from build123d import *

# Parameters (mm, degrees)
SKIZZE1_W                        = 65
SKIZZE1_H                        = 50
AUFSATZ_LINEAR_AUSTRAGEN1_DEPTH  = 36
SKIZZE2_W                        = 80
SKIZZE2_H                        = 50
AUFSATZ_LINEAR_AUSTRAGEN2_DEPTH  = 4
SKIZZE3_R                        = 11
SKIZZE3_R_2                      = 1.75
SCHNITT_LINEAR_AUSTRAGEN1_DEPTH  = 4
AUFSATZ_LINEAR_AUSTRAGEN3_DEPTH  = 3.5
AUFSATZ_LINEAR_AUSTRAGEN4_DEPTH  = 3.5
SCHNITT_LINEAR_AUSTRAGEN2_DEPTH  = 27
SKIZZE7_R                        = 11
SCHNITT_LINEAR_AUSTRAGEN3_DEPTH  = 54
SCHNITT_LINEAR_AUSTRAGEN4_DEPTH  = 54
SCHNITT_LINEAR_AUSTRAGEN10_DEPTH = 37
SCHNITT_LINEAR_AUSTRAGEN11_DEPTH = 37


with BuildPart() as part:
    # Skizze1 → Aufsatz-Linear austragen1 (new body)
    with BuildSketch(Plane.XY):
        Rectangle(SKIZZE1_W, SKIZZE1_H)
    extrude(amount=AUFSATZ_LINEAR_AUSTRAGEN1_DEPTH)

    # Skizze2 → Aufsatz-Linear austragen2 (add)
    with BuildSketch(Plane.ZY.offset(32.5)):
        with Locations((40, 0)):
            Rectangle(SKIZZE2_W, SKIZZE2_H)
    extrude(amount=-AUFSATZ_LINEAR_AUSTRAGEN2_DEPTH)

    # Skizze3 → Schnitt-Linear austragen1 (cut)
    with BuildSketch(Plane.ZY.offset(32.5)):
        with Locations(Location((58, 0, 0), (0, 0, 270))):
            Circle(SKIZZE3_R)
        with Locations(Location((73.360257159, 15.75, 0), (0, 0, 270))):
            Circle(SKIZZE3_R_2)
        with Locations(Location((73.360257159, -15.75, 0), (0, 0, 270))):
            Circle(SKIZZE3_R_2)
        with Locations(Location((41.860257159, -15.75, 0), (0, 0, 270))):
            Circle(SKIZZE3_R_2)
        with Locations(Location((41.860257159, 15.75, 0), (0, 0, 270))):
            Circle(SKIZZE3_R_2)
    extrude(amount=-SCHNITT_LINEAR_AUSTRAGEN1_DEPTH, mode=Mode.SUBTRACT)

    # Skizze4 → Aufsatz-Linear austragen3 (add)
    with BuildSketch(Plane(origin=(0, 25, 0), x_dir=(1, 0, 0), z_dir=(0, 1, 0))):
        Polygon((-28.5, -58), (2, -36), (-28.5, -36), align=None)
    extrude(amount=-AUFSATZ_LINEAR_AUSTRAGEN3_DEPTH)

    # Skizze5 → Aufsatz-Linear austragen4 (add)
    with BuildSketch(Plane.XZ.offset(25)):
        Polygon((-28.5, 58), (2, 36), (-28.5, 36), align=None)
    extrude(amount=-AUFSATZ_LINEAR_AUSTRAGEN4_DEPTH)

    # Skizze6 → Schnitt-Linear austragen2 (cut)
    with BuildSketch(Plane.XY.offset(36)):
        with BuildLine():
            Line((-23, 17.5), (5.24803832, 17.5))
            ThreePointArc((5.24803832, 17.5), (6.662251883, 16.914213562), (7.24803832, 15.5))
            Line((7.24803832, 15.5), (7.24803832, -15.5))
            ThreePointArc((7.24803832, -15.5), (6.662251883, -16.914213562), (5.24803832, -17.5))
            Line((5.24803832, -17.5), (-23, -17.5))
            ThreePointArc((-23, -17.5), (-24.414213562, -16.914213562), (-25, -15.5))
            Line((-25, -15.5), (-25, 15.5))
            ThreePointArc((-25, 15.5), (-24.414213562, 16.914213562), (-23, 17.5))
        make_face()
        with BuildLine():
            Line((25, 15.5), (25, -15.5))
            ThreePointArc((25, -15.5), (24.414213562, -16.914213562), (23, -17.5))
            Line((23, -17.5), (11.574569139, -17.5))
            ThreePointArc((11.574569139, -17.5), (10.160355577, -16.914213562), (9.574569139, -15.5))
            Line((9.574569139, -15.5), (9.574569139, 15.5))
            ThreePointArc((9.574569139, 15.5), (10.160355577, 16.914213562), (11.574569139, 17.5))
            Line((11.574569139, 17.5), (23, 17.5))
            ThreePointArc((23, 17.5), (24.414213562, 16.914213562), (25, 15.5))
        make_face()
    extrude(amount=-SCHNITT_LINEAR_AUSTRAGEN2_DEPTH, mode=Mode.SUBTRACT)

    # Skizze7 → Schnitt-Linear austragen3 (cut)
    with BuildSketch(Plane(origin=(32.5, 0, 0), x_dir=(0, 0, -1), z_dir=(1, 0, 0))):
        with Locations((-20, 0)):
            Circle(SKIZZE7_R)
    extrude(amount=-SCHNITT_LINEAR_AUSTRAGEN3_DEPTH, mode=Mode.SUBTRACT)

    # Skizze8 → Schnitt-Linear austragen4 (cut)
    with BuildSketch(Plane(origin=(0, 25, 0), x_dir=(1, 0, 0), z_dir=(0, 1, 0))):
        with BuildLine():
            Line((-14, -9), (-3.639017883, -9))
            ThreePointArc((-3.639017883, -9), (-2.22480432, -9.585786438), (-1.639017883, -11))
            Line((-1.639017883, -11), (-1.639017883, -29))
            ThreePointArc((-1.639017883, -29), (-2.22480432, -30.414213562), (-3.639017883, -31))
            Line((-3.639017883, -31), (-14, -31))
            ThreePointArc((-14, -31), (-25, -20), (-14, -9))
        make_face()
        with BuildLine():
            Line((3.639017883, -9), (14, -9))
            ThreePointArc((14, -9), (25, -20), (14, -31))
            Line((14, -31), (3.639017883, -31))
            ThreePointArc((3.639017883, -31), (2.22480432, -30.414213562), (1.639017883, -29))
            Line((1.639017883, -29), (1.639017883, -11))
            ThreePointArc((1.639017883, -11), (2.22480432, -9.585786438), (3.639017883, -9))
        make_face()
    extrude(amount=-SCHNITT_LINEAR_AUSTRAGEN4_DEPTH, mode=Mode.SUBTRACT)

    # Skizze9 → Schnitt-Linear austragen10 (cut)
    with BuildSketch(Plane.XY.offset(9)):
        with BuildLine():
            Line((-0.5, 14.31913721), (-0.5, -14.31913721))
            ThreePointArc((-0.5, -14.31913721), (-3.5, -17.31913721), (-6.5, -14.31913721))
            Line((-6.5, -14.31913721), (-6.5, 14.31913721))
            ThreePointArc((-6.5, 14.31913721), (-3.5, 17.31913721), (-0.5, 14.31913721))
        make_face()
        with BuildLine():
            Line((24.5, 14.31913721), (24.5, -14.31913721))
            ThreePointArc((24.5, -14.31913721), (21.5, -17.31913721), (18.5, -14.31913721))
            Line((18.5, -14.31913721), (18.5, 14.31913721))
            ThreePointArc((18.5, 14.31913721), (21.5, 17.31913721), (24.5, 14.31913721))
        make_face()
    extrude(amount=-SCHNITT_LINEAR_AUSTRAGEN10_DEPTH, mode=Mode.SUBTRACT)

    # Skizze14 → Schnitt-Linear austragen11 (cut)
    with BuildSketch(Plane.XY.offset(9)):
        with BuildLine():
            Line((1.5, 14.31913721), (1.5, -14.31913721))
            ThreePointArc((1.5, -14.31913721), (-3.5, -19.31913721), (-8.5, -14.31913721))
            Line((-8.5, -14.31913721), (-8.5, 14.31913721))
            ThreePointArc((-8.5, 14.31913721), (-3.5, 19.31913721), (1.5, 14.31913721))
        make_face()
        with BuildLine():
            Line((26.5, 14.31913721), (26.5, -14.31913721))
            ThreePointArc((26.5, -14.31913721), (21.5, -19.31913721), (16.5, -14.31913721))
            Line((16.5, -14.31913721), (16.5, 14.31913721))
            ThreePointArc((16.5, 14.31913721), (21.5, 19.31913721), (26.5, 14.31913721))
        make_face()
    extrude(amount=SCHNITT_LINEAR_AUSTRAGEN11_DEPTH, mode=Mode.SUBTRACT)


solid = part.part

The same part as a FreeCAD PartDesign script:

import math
import FreeCAD as App
import Part
import Sketcher

V = App.Vector

doc = App.newDocument("Part")
params = doc.addObject("Spreadsheet::Sheet", "Params")
for row, (alias, value) in enumerate([
    ("sketch1_width", "65 mm"),
    ("sketch1_height", "50 mm"),
    ("pad1_length", "36 mm"),
    ("sketch2_width", "50 mm"),
    ("sketch2_height", "80 mm"),
    ("pad2_length", "4 mm"),
    ("sketch3_diameter", "22 mm"),
    ("sketch3_diameter2", "3.5 mm"),
    ("pocket1_length", "4 mm"),
    ("sketch4_height", "22 mm"),
    ("sketch4_width", "30.5 mm"),
    ("pad3_length", "3.5 mm"),
    ("sketch5_height", "22 mm"),
    ("sketch5_width", "30.5 mm"),
    ("pad4_length", "3.5 mm"),
    ("sketch6_radius", "2 mm"),
    ("sketch6_height", "31 mm"),
    ("pocket2_length", "27 mm"),
    ("sketch7_diameter", "22 mm"),
    ("pocket3_length", "54 mm"),
    ("sketch8_radius", "11 mm"),
    ("sketch8_radius2", "2 mm"),
    ("pocket4_length", "54 mm"),
    ("sketch9_radius", "3 mm"),
    ("pocket5_length", "37 mm"),
    ("sketch10_radius", "5 mm"),
    ("pocket6_length", "37 mm"),
], start=1):
    params.set(f"A{row}", alias)
    params.set(f"B{row}", "=" + value)
    params.setAlias(f"B{row}", alias)

body = doc.addObject("PartDesign::Body", "Body")

sketch1 = body.newObject("Sketcher::SketchObject", "Sketch")
sketch1.AttachmentSupport = (doc.getObject("XY_Plane"), [""])
sketch1.MapMode = "FlatFace"
sketch1.addGeometry([
    Part.LineSegment(V(-32, 25, 0), V(-32, -25, 0)),
    Part.LineSegment(V(-32, -25, 0), V(32, -25, 0)),
    Part.LineSegment(V(32, -25, 0), V(32, 25, 0)),
    Part.LineSegment(V(32, 25, 0), V(-32, 25, 0)),
], False)
sketch1.addConstraint([
    Sketcher.Constraint("Coincident", 0, 2, 1, 1),
    Sketcher.Constraint("Coincident", 1, 2, 2, 1),
    Sketcher.Constraint("Coincident", 2, 2, 3, 1),
    Sketcher.Constraint("Coincident", 3, 2, 0, 1),
    Sketcher.Constraint("Vertical", 0),
    Sketcher.Constraint("Horizontal", 1),
    Sketcher.Constraint("Vertical", 2),
    Sketcher.Constraint("Horizontal", 3),
    Sketcher.Constraint("Symmetric", 0, 2, 2, 2, -1, 1),
    Sketcher.Constraint("DistanceX", 1, 1, 1, 2, 65.0),
    Sketcher.Constraint("DistanceY", 0, 2, 0, 1, 50.0),
])
sketch1.setExpression("Constraints[9]", "Params.sketch1_width")
sketch1.setExpression("Constraints[10]", "Params.sketch1_height")
pad1 = body.newObject("PartDesign::Pad", "Pad")
pad1.Profile = sketch1
pad1.setExpression("Length", "Params.pad1_length")

sketch2 = body.newObject("Sketcher::SketchObject", "Sketch001")
sketch2.AttachmentSupport = (doc.getObject("YZ_Plane"), [""])
sketch2.MapMode = "FlatFace"
sketch2.AttachmentOffset = App.Placement(V(0, 0, -32.5), App.Rotation())
sketch2.addGeometry([
    Part.LineSegment(V(25, 0, 0), V(-25, 0, 0)),
    Part.LineSegment(V(-25, 0, 0), V(-25, 80, 0)),
    Part.LineSegment(V(-25, 80, 0), V(25, 80, 0)),
    Part.LineSegment(V(25, 80, 0), V(25, 0, 0)),
], False)
sketch2.addConstraint([
    Sketcher.Constraint("Coincident", 0, 2, 1, 1),
    Sketcher.Constraint("Coincident", 1, 2, 2, 1),
    Sketcher.Constraint("Coincident", 2, 2, 3, 1),
    Sketcher.Constraint("Coincident", 3, 2, 0, 1),
    Sketcher.Constraint("Horizontal", 0),
    Sketcher.Constraint("Vertical", 1),
    Sketcher.Constraint("Horizontal", 2),
    Sketcher.Constraint("Vertical", 3),
    Sketcher.Constraint("Symmetric", 0, 2, 3, 2, -1, 1),
    Sketcher.Constraint("DistanceX", 0, 2, 0, 1, 50.0),
    Sketcher.Constraint("DistanceY", 1, 1, 1, 2, 80.0),
])
sketch2.setExpression("Constraints[9]", "Params.sketch2_width")
sketch2.setExpression("Constraints[10]", "Params.sketch2_height")
pad2 = body.newObject("PartDesign::Pad", "Pad001")
pad2.Profile = sketch2
pad2.setExpression("Length", "Params.pad2_length")

sketch3 = body.newObject("Sketcher::SketchObject", "Sketch002")
sketch3.AttachmentSupport = (doc.getObject("YZ_Plane"), [""])
sketch3.MapMode = "FlatFace"
sketch3.AttachmentOffset = App.Placement(V(0, 0, -32.5), App.Rotation())
sketch3.addGeometry([
    Part.Circle(V(0, 58, 0), V(0, 0, 1), 11),
    Part.Circle(V(15.8, 73.4, 0), V(0, 0, 1), 1.8),
    Part.Circle(V(-15.8, 73.4, 0), V(0, 0, 1), 1.8),
    Part.Circle(V(-15.8, 41.9, 0), V(0, 0, 1), 1.8),
    Part.Circle(V(15.8, 41.9, 0), V(0, 0, 1), 1.8),
], False)
sketch3.addConstraint([
    Sketcher.Constraint("Equal", 1, 2),
    Sketcher.Constraint("Equal", 2, 3),
    Sketcher.Constraint("Equal", 3, 4),
    Sketcher.Constraint("Symmetric", 1, 3, 2, 3, -2),
    Sketcher.Constraint("Symmetric", 3, 3, 4, 3, -2),
    Sketcher.Constraint("PointOnObject", 0, 3, -2),
    Sketcher.Constraint("Vertical", 2, 3, 3, 3),
    Sketcher.Constraint("Diameter", 0, 22.0),
    Sketcher.Constraint("Diameter", 1, 3.5),
    Sketcher.Constraint("DistanceY", -1, 1, 0, 3, 58.0),
    Sketcher.Constraint("DistanceX", 2, 3, 1, 3, 31.5),
    Sketcher.Constraint("DistanceY", 3, 3, 2, 3, 31.5),
    Sketcher.Constraint("DistanceY", -1, 1, 1, 3, 73.360257),
])
sketch3.setExpression("Constraints[7]", "Params.sketch3_diameter")
sketch3.setExpression("Constraints[8]", "Params.sketch3_diameter2")
pocket1 = body.newObject("PartDesign::Pocket", "Pocket")
pocket1.Profile = sketch3
pocket1.setExpression("Length", "Params.pocket1_length")
pocket1.Reversed = True

sketch4 = body.newObject("Sketcher::SketchObject", "Sketch003")
sketch4.AttachmentSupport = (doc.getObject("XZ_Plane"), [""])
sketch4.MapMode = "FlatFace"
sketch4.AttachmentOffset = App.Placement(V(0, 0, -25), App.Rotation())
sketch4.addGeometry([
    Part.LineSegment(V(-28, 58, 0), V(2, 36, 0)),
    Part.LineSegment(V(2, 36, 0), V(-28, 36, 0)),
    Part.LineSegment(V(-28, 36, 0), V(-28, 58, 0)),
], False)
sketch4.addConstraint([
    Sketcher.Constraint("Coincident", 0, 2, 1, 1),
    Sketcher.Constraint("Coincident", 1, 2, 2, 1),
    Sketcher.Constraint("Coincident", 2, 2, 0, 1),
    Sketcher.Constraint("Horizontal", 1),
    Sketcher.Constraint("Vertical", 2),
    Sketcher.Constraint("DistanceY", 2, 1, 2, 2, 22.0),
    Sketcher.Constraint("DistanceX", 1, 2, 1, 1, 30.5),
    Sketcher.Constraint("DistanceX", -1, 1, 0, 2, 2.0),
    Sketcher.Constraint("DistanceY", -1, 1, 0, 2, 36.0),
])
sketch4.setExpression("Constraints[5]", "Params.sketch4_height")
sketch4.setExpression("Constraints[6]", "Params.sketch4_width")
pad3 = body.newObject("PartDesign::Pad", "Pad002")
pad3.Profile = sketch4
pad3.setExpression("Length", "Params.pad3_length")

sketch5 = body.newObject("Sketcher::SketchObject", "Sketch004")
sketch5.AttachmentSupport = (doc.getObject("XZ_Plane"), [""])
sketch5.MapMode = "FlatFace"
sketch5.AttachmentOffset = App.Placement(V(0, 0, 25), App.Rotation())
sketch5.addGeometry([
    Part.LineSegment(V(2, 36, 0), V(-28, 58, 0)),
    Part.LineSegment(V(-28, 58, 0), V(-28, 36, 0)),
    Part.LineSegment(V(-28, 36, 0), V(2, 36, 0)),
], False)
sketch5.addConstraint([
    Sketcher.Constraint("Coincident", 0, 2, 1, 1),
    Sketcher.Constraint("Coincident", 1, 2, 2, 1),
    Sketcher.Constraint("Coincident", 2, 2, 0, 1),
    Sketcher.Constraint("Vertical", 1),
    Sketcher.Constraint("Horizontal", 2),
    Sketcher.Constraint("DistanceY", 1, 2, 1, 1, 22.0),
    Sketcher.Constraint("DistanceX", 2, 1, 2, 2, 30.5),
    Sketcher.Constraint("DistanceY", -1, 1, 0, 2, 58.0),
    Sketcher.Constraint("DistanceX", -1, 1, 2, 2, 2.0),
])
sketch5.setExpression("Constraints[5]", "Params.sketch5_height")
sketch5.setExpression("Constraints[6]", "Params.sketch5_width")
pad4 = body.newObject("PartDesign::Pad", "Pad003")
pad4.Profile = sketch5
pad4.setExpression("Length", "Params.pad4_length")
pad4.Reversed = True

sketch6 = body.newObject("Sketcher::SketchObject", "Sketch005")
sketch6.AttachmentSupport = (doc.getObject("XY_Plane"), [""])
sketch6.MapMode = "FlatFace"
sketch6.AttachmentOffset = App.Placement(V(0, 0, 36), App.Rotation())
sketch6.addGeometry([
    Part.LineSegment(V(5.2, 17.5, 0), V(-23, 17.5, 0)),
    Part.ArcOfCircle(Part.Circle(V(-23, 15.5, 0), V(0, 0, 1), 2), math.radians(90), math.radians(180)),
    Part.LineSegment(V(-25, 15.5, 0), V(-25, -15.5, 0)),
    Part.ArcOfCircle(Part.Circle(V(-23, -15.5, 0), V(0, 0, 1), 2), math.radians(-180), math.radians(-90)),
    Part.LineSegment(V(-23, -17.5, 0), V(5.2, -17.5, 0)),
    Part.ArcOfCircle(Part.Circle(V(5.2, -15.5, 0), V(0, 0, 1), 2), math.radians(-90), math.radians(0)),
    Part.LineSegment(V(7.2, -15.5, 0), V(7.2, 15.5, 0)),
    Part.ArcOfCircle(Part.Circle(V(5.2, 15.5, 0), V(0, 0, 1), 2), math.radians(0), math.radians(90)),
    Part.LineSegment(V(25, -15.5, 0), V(25, 15.5, 0)),
    Part.ArcOfCircle(Part.Circle(V(23, 15.5, 0), V(0, 0, 1), 2), math.radians(0), math.radians(90)),
    Part.LineSegment(V(23, 17.5, 0), V(11.6, 17.5, 0)),
    Part.ArcOfCircle(Part.Circle(V(11.6, 15.5, 0), V(0, 0, 1), 2), math.radians(90), math.radians(180)),
    Part.LineSegment(V(9.6, 15.5, 0), V(9.6, -15.5, 0)),
    Part.ArcOfCircle(Part.Circle(V(11.6, -15.5, 0), V(0, 0, 1), 2), math.radians(-180), math.radians(-90)),
    Part.LineSegment(V(11.6, -17.5, 0), V(23, -17.5, 0)),
    Part.ArcOfCircle(Part.Circle(V(23, -15.5, 0), V(0, 0, 1), 2), math.radians(-90), math.radians(0)),
], False)
sketch6.addConstraint([
    Sketcher.Constraint("Tangent", 0, 2, 1, 1),
    Sketcher.Constraint("Tangent", 1, 2, 2, 1),
    Sketcher.Constraint("Tangent", 2, 2, 3, 1),
    Sketcher.Constraint("Tangent", 3, 2, 4, 1),
    Sketcher.Constraint("Tangent", 4, 2, 5, 1),
    Sketcher.Constraint("Tangent", 5, 2, 6, 1),
    Sketcher.Constraint("Tangent", 6, 2, 7, 1),
    Sketcher.Constraint("Tangent", 7, 2, 0, 1),
    Sketcher.Constraint("Tangent", 8, 2, 9, 1),
    Sketcher.Constraint("Tangent", 9, 2, 10, 1),
    Sketcher.Constraint("Tangent", 10, 2, 11, 1),
    Sketcher.Constraint("Tangent", 11, 2, 12, 1),
    Sketcher.Constraint("Tangent", 12, 2, 13, 1),
    Sketcher.Constraint("Tangent", 13, 2, 14, 1),
    Sketcher.Constraint("Tangent", 14, 2, 15, 1),
    Sketcher.Constraint("Tangent", 15, 2, 8, 1),
    Sketcher.Constraint("Horizontal", 0),
    Sketcher.Constraint("Vertical", 2),
    Sketcher.Constraint("Horizontal", 4),
    Sketcher.Constraint("Vertical", 6),
    Sketcher.Constraint("Vertical", 8),
    Sketcher.Constraint("Horizontal", 10),
    Sketcher.Constraint("Vertical", 12),
    Sketcher.Constraint("Horizontal", 14),
    Sketcher.Constraint("Equal", 1, 3),
    Sketcher.Constraint("Equal", 3, 5),
    Sketcher.Constraint("Equal", 5, 7),
    Sketcher.Constraint("Equal", 7, 9),
    Sketcher.Constraint("Equal", 9, 11),
    Sketcher.Constraint("Equal", 11, 13),
    Sketcher.Constraint("Equal", 13, 15),
    Sketcher.Constraint("Symmetric", 3, 3, 9, 3, -1, 1),
    Sketcher.Constraint("Horizontal", 7, 3, 9, 3),
    Sketcher.Constraint("Horizontal", 5, 3, 13, 3),
    Sketcher.Constraint("Radius", 1, 2.0),
    Sketcher.Constraint("DistanceY", 2, 2, 2, 1, 31.0),
    Sketcher.Constraint("DistanceX", 1, 3, -1, 1, 23.0),
    Sketcher.Constraint("DistanceX", 0, 2, 0, 1, 28.248038),
    Sketcher.Constraint("DistanceX", 10, 2, 10, 1, 11.425431),
])
sketch6.setExpression("Constraints[34]", "Params.sketch6_radius")
sketch6.setExpression("Constraints[35]", "Params.sketch6_height")
pocket2 = body.newObject("PartDesign::Pocket", "Pocket001")
pocket2.Profile = sketch6
pocket2.setExpression("Length", "Params.pocket2_length")

sketch7 = body.newObject("Sketcher::SketchObject", "Sketch006")
sketch7.AttachmentSupport = (doc.getObject("YZ_Plane"), [""])
sketch7.MapMode = "FlatFace"
sketch7.AttachmentOffset = App.Placement(V(0, 0, 32.5), App.Rotation())
sketch7.addGeometry(Part.Circle(V(0, 20, 0), V(0, 0, 1), 11), False)
sketch7.addConstraint([
    Sketcher.Constraint("PointOnObject", 0, 3, -2),
    Sketcher.Constraint("Diameter", 0, 22.0),
    Sketcher.Constraint("DistanceY", -1, 1, 0, 3, 20.0),
])
sketch7.setExpression("Constraints[1]", "Params.sketch7_diameter")
pocket3 = body.newObject("PartDesign::Pocket", "Pocket002")
pocket3.Profile = sketch7
pocket3.setExpression("Length", "Params.pocket3_length")

sketch8 = body.newObject("Sketcher::SketchObject", "Sketch007")
sketch8.AttachmentSupport = (doc.getObject("XZ_Plane"), [""])
sketch8.MapMode = "FlatFace"
sketch8.AttachmentOffset = App.Placement(V(0, 0, -25), App.Rotation())
sketch8.addGeometry([
    Part.LineSegment(V(-3.6, 9, 0), V(-14, 9, 0)),
    Part.ArcOfCircle(Part.Circle(V(-14, 20, 0), V(0, 0, 1), 11), math.radians(90), math.radians(270)),
    Part.LineSegment(V(-14, 31, 0), V(-3.6, 31, 0)),
    Part.ArcOfCircle(Part.Circle(V(-3.6, 29, 0), V(0, 0, 1), 2), math.radians(0), math.radians(90)),
    Part.LineSegment(V(-1.6, 29, 0), V(-1.6, 11, 0)),
    Part.ArcOfCircle(Part.Circle(V(-3.6, 11, 0), V(0, 0, 1), 2), math.radians(-90), math.radians(0)),
    Part.LineSegment(V(14, 9, 0), V(3.6, 9, 0)),
    Part.ArcOfCircle(Part.Circle(V(3.6, 11, 0), V(0, 0, 1), 2), math.radians(180), math.radians(270)),
    Part.LineSegment(V(1.6, 11, 0), V(1.6, 29, 0)),
    Part.ArcOfCircle(Part.Circle(V(3.6, 29, 0), V(0, 0, 1), 2), math.radians(90), math.radians(180)),
    Part.LineSegment(V(3.6, 31, 0), V(14, 31, 0)),
    Part.ArcOfCircle(Part.Circle(V(14, 20, 0), V(0, 0, 1), 11), math.radians(-90), math.radians(90)),
], False)
sketch8.addConstraint([
    Sketcher.Constraint("Tangent", 0, 2, 1, 2),
    Sketcher.Constraint("Tangent", 1, 1, 2, 1),
    Sketcher.Constraint("Tangent", 2, 2, 3, 2),
    Sketcher.Constraint("Tangent", 3, 1, 4, 1),
    Sketcher.Constraint("Tangent", 4, 2, 5, 2),
    Sketcher.Constraint("Tangent", 5, 1, 0, 1),
    Sketcher.Constraint("Tangent", 6, 2, 7, 2),
    Sketcher.Constraint("Tangent", 7, 1, 8, 1),
    Sketcher.Constraint("Tangent", 8, 2, 9, 2),
    Sketcher.Constraint("Tangent", 9, 1, 10, 1),
    Sketcher.Constraint("Tangent", 10, 2, 11, 2),
    Sketcher.Constraint("Tangent", 11, 1, 6, 1),
    Sketcher.Constraint("Horizontal", 0),
    Sketcher.Constraint("Horizontal", 2),
    Sketcher.Constraint("Vertical", 4),
    Sketcher.Constraint("Horizontal", 6),
    Sketcher.Constraint("Vertical", 8),
    Sketcher.Constraint("Horizontal", 10),
    Sketcher.Constraint("Equal", 3, 5),
    Sketcher.Constraint("Equal", 5, 7),
    Sketcher.Constraint("Equal", 7, 9),
    Sketcher.Constraint("Equal", 1, 11),
    Sketcher.Constraint("Symmetric", 5, 3, 7, 3, -2),
    Sketcher.Constraint("Equal", 2, 6),
    Sketcher.Constraint("Radius", 1, 11.0),
    Sketcher.Constraint("Radius", 3, 2.0),
    Sketcher.Constraint("DistanceX", 1, 3, -1, 1, 14.0),
    Sketcher.Constraint("DistanceY", -1, 1, 1, 3, 20.0),
    Sketcher.Constraint("DistanceX", 0, 2, 0, 1, 10.360982),
])
sketch8.setExpression("Constraints[24]", "Params.sketch8_radius")
sketch8.setExpression("Constraints[25]", "Params.sketch8_radius2")
pocket4 = body.newObject("PartDesign::Pocket", "Pocket003")
pocket4.Profile = sketch8
pocket4.setExpression("Length", "Params.pocket4_length")
pocket4.Reversed = True

sketch9 = body.newObject("Sketcher::SketchObject", "Sketch008")
sketch9.AttachmentSupport = (doc.getObject("XY_Plane"), [""])
sketch9.MapMode = "FlatFace"
sketch9.AttachmentOffset = App.Placement(V(0, 0, 9), App.Rotation())
sketch9.addGeometry([
    Part.LineSegment(V(-0.5, -14.3, 0), V(-0.5, 14.3, 0)),
    Part.ArcOfCircle(Part.Circle(V(-3.5, 14.3, 0), V(0, 0, 1), 3), math.radians(0), math.radians(180)),
    Part.LineSegment(V(-6.5, 14.3, 0), V(-6.5, -14.3, 0)),
    Part.ArcOfCircle(Part.Circle(V(-3.5, -14.3, 0), V(0, 0, 1), 3), math.radians(180), math.radians(360)),
    Part.LineSegment(V(24.5, -14.3, 0), V(24.5, 14.3, 0)),
    Part.ArcOfCircle(Part.Circle(V(21.5, 14.3, 0), V(0, 0, 1), 3), math.radians(0), math.radians(180)),
    Part.LineSegment(V(18.5, 14.3, 0), V(18.5, -14.3, 0)),
    Part.ArcOfCircle(Part.Circle(V(21.5, -14.3, 0), V(0, 0, 1), 3), math.radians(180), math.radians(360)),
], False)
sketch9.addConstraint([
    Sketcher.Constraint("Tangent", 0, 2, 1, 1),
    Sketcher.Constraint("Tangent", 1, 2, 2, 1),
    Sketcher.Constraint("Tangent", 2, 2, 3, 1),
    Sketcher.Constraint("Tangent", 3, 2, 0, 1),
    Sketcher.Constraint("Tangent", 4, 2, 5, 1),
    Sketcher.Constraint("Tangent", 5, 2, 6, 1),
    Sketcher.Constraint("Tangent", 6, 2, 7, 1),
    Sketcher.Constraint("Tangent", 7, 2, 4, 1),
    Sketcher.Constraint("Vertical", 0),
    Sketcher.Constraint("Vertical", 2),
    Sketcher.Constraint("Vertical", 4),
    Sketcher.Constraint("Vertical", 6),
    Sketcher.Constraint("Equal", 3, 5),
    Sketcher.Constraint("Horizontal", 1, 3, 5, 3),
    Sketcher.Constraint("Horizontal", 3, 3, 7, 3),
    Sketcher.Constraint("Radius", 1, 3.0),
    Sketcher.Constraint("DistanceX", 1, 3, 5, 3, 25.0),
    Sketcher.Constraint("DistanceX", 1, 3, -1, 1, 3.5),
    Sketcher.Constraint("DistanceY", 0, 1, 0, 2, 28.638274),
    Sketcher.Constraint("DistanceY", -1, 1, 1, 3, 14.319137),
])
sketch9.setExpression("Constraints[15]", "Params.sketch9_radius")
pocket5 = body.newObject("PartDesign::Pocket", "Pocket004")
pocket5.Profile = sketch9
pocket5.setExpression("Length", "Params.pocket5_length")

sketch10 = body.newObject("Sketcher::SketchObject", "Sketch009")
sketch10.AttachmentSupport = (doc.getObject("XY_Plane"), [""])
sketch10.MapMode = "FlatFace"
sketch10.AttachmentOffset = App.Placement(V(0, 0, 9), App.Rotation())
sketch10.addGeometry([
    Part.LineSegment(V(2, -14, 0), V(2, 14, 0)),
    Part.ArcOfCircle(Part.Circle(V(-4, 14, 0), V(0, 0, 1), 5), math.radians(0), math.radians(180)),
    Part.LineSegment(V(-8, 14, 0), V(-8, -14, 0)),
    Part.ArcOfCircle(Part.Circle(V(-4, -14, 0), V(0, 0, 1), 5), math.radians(180), math.radians(360)),
    Part.LineSegment(V(26, -14, 0), V(26, 14, 0)),
    Part.ArcOfCircle(Part.Circle(V(22, 14, 0), V(0, 0, 1), 5), math.radians(0), math.radians(180)),
    Part.LineSegment(V(16, 14, 0), V(16, -14, 0)),
    Part.ArcOfCircle(Part.Circle(V(22, -14, 0), V(0, 0, 1), 5), math.radians(180), math.radians(360)),
], False)
sketch10.addConstraint([
    Sketcher.Constraint("Tangent", 0, 2, 1, 1),
    Sketcher.Constraint("Tangent", 1, 2, 2, 1),
    Sketcher.Constraint("Tangent", 2, 2, 3, 1),
    Sketcher.Constraint("Tangent", 3, 2, 0, 1),
    Sketcher.Constraint("Tangent", 4, 2, 5, 1),
    Sketcher.Constraint("Tangent", 5, 2, 6, 1),
    Sketcher.Constraint("Tangent", 6, 2, 7, 1),
    Sketcher.Constraint("Tangent", 7, 2, 4, 1),
    Sketcher.Constraint("Vertical", 0),
    Sketcher.Constraint("Vertical", 2),
    Sketcher.Constraint("Vertical", 4),
    Sketcher.Constraint("Vertical", 6),
    Sketcher.Constraint("Equal", 3, 5),
    Sketcher.Constraint("Horizontal", 1, 3, 5, 3),
    Sketcher.Constraint("Horizontal", 3, 3, 7, 3),
    Sketcher.Constraint("Radius", 1, 5.0),
    Sketcher.Constraint("DistanceX", 1, 3, 5, 3, 25.0),
    Sketcher.Constraint("DistanceX", 1, 3, -1, 1, 3.5),
    Sketcher.Constraint("DistanceY", 0, 1, 0, 2, 28.638274),
    Sketcher.Constraint("DistanceY", -1, 1, 1, 3, 14.319137),
])
sketch10.setExpression("Constraints[15]", "Params.sketch10_radius")
pocket6 = body.newObject("PartDesign::Pocket", "Pocket005")
pocket6.Profile = sketch10
pocket6.setExpression("Length", "Params.pocket6_length")
pocket6.Reversed = True

doc.recompute()
